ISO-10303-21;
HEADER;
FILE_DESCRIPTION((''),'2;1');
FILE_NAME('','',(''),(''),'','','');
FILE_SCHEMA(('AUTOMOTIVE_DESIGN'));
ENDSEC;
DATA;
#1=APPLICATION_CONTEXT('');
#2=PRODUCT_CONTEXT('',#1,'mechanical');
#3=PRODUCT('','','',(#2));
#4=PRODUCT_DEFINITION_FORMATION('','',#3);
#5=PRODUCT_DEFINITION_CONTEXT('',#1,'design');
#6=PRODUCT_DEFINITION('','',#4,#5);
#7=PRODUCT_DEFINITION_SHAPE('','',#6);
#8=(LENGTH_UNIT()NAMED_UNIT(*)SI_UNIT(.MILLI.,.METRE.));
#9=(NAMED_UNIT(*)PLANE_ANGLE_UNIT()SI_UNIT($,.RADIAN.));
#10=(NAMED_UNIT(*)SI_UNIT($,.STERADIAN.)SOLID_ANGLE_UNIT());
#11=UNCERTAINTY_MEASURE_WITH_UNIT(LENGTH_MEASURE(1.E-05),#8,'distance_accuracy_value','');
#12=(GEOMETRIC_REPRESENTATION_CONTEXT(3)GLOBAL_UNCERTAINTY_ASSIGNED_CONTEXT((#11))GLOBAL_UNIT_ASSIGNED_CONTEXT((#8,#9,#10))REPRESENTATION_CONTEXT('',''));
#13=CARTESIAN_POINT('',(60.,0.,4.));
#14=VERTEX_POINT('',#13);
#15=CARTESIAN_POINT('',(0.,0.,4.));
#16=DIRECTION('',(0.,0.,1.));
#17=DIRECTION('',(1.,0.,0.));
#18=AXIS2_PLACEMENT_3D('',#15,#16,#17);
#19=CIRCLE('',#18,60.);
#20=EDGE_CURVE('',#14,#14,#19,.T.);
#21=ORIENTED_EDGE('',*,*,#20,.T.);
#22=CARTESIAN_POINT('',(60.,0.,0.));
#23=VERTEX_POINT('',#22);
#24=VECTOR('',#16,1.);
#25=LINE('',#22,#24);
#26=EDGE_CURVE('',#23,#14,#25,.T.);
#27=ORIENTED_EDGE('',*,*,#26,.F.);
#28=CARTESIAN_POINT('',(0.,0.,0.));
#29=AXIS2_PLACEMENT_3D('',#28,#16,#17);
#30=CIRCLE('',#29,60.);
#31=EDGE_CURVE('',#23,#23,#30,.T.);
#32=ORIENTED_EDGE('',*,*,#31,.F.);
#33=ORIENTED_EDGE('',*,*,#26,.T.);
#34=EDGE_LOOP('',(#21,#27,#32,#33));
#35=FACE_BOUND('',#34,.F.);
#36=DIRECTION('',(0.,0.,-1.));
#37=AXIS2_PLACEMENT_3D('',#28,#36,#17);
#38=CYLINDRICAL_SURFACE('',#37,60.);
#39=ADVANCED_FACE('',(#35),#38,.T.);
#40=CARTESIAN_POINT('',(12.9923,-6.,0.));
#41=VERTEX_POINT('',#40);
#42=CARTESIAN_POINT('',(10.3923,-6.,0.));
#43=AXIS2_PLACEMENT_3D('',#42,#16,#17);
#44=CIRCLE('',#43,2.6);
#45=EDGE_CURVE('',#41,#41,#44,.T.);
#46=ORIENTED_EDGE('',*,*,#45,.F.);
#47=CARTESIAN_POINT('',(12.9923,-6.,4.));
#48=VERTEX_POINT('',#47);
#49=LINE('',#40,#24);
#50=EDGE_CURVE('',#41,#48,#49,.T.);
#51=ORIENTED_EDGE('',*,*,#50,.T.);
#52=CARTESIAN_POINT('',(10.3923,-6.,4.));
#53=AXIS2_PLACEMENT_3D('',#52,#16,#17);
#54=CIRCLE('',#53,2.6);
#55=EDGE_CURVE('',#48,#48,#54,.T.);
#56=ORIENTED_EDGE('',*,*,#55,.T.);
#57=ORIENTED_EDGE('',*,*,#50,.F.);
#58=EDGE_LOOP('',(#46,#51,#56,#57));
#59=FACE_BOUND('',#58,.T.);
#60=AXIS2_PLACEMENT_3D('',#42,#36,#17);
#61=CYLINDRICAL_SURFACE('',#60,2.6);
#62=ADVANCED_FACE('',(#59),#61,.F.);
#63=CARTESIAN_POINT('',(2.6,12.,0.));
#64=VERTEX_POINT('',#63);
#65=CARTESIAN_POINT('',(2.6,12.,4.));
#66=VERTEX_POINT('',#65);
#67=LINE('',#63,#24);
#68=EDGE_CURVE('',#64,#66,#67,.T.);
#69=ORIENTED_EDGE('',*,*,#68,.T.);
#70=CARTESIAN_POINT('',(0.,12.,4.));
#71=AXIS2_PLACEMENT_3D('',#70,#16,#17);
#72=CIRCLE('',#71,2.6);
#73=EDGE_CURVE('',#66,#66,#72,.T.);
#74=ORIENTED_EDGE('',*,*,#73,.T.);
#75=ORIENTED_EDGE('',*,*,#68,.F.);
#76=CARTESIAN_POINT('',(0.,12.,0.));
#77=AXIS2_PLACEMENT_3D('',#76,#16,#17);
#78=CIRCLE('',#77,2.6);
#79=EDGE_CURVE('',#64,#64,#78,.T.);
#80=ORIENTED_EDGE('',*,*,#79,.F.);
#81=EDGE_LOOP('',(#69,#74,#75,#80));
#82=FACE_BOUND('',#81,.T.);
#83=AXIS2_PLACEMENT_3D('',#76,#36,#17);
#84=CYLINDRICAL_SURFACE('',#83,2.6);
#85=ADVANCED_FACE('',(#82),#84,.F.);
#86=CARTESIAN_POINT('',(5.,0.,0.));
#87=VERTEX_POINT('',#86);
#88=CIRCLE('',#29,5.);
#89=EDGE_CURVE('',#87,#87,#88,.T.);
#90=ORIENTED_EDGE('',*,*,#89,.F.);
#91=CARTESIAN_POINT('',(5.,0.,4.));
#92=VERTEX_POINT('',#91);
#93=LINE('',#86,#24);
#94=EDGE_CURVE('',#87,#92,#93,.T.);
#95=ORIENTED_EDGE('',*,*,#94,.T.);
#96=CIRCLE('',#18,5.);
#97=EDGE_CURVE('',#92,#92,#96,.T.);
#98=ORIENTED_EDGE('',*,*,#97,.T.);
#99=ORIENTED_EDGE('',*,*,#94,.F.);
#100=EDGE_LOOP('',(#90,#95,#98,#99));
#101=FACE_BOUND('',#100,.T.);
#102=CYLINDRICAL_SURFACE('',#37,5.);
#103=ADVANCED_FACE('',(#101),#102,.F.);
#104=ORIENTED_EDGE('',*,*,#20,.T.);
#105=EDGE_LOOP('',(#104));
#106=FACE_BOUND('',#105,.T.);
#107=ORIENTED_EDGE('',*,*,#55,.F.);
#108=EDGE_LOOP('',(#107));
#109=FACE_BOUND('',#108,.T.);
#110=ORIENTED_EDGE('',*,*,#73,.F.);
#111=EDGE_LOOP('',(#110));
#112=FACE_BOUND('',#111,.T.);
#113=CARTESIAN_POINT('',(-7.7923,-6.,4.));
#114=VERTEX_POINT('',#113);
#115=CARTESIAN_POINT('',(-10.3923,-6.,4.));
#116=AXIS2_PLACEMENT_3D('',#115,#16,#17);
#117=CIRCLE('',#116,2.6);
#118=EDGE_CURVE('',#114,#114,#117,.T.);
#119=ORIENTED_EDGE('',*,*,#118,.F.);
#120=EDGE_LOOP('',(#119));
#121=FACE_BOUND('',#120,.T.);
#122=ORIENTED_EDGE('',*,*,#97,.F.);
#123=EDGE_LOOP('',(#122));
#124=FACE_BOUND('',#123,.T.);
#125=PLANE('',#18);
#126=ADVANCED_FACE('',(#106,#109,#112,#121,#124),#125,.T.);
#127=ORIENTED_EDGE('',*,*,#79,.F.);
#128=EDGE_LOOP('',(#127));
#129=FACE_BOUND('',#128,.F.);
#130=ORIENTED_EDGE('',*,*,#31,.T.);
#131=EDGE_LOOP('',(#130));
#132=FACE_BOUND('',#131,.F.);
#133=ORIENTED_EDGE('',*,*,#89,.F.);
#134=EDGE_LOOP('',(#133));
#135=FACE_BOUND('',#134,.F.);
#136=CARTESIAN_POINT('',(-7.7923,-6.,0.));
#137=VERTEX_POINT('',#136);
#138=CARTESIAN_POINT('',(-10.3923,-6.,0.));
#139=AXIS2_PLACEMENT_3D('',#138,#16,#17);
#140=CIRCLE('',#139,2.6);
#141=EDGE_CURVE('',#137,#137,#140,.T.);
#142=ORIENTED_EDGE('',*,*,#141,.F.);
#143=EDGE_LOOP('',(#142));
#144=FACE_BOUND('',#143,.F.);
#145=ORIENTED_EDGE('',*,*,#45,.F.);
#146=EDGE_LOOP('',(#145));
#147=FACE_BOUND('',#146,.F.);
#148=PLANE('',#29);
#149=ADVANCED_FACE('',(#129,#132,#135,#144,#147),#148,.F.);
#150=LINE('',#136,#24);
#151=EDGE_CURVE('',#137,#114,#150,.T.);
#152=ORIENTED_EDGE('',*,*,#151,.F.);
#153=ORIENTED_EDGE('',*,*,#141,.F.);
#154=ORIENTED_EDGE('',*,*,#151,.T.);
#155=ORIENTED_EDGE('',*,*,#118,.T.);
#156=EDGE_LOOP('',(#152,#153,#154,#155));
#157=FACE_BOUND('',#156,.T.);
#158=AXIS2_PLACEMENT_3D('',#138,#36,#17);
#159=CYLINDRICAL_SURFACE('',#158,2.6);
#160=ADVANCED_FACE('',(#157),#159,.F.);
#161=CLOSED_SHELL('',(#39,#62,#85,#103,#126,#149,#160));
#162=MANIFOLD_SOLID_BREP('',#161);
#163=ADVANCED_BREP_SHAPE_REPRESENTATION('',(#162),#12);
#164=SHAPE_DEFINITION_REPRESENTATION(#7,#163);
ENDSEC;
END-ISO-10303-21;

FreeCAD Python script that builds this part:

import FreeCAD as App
import Part
import Sketcher
from FreeCAD import Vector
Q = App.Units.Quantity

doc = App.newDocument("Part")
params = doc.addObject("Spreadsheet::Sheet", "Params")
for row, (alias, value) in enumerate([
    ("sketch1_diameter", "120 mm"),
    ("sketch1_diameter2", "10 mm"),
    ("sketch1_diameter3", "5.2 mm"),
    ("pad1_length", "4 mm"),
], start=1):
    params.set(f"A{row}", alias)
    params.set(f"B{row}", "=" + value)
    params.setAlias(f"B{row}", alias)

body = doc.addObject("PartDesign::Body", "Body")

sketch1 = body.newObject("Sketcher::SketchObject", "Sketch")
sketch1.AttachmentSupport = (doc.getObject("XY_Plane"), [""])
sketch1.MapMode = "FlatFace"
sketch1.addGeometry(Part.Circle(Vector(0, 0, 0), Vector(0, 0, 1), 60), False)
sketch1.addGeometry(Part.Circle(Vector(-10.4, -6, 0), Vector(0, 0, 1), 2.6), False)
sketch1.addGeometry(Part.Circle(Vector(10.4, -6, 0), Vector(0, 0, 1), 2.6), False)
sketch1.addGeometry(Part.Circle(Vector(0, 0, 0), Vector(0, 0, 1), 5), False)
sketch1.addGeometry(Part.Circle(Vector(0, 12, 0), Vector(0, 0, 1), 2.6), False)
sketch1.addConstraint(Sketcher.Constraint("Coincident", 0, 3, -1, 1))
sketch1.addConstraint(Sketcher.Constraint("Coincident", 3, 3, -1, 1))
sketch1.addConstraint(Sketcher.Constraint("Equal", 1, 2))
sketch1.addConstraint(Sketcher.Constraint("Equal", 2, 4))
sketch1.addConstraint(Sketcher.Constraint("Symmetric", 1, 3, 2, 3, -2))
sketch1.addConstraint(Sketcher.Constraint("PointOnObject", 4, 3, -2))
sketch1.addConstraint(Sketcher.Constraint("Diameter", 0, Q("120 mm")))
sketch1.addConstraint(Sketcher.Constraint("Diameter", 3, Q("10 mm")))
sketch1.addConstraint(Sketcher.Constraint("Diameter", 1, Q("5.2 mm")))
sketch1.addConstraint(Sketcher.Constraint("DistanceY", -1, 1, 4, 3, Q("12 mm")))
sketch1.addConstraint(Sketcher.Constraint("DistanceY", 1, 3, -1, 1, Q("6 mm")))
sketch1.addConstraint(Sketcher.Constraint("DistanceX", 1, 3, -1, 1, Q("10.3923 mm")))
sketch1.setExpression("Constraints[6]", "Params.sketch1_diameter")
sketch1.setExpression("Constraints[7]", "Params.sketch1_diameter2")
sketch1.setExpression("Constraints[8]", "Params.sketch1_diameter3")
pad1 = body.newObject("PartDesign::Pad", "Pad")
pad1.Profile = sketch1
pad1.setExpression("Length", "Params.pad1_length")

doc.recompute()
